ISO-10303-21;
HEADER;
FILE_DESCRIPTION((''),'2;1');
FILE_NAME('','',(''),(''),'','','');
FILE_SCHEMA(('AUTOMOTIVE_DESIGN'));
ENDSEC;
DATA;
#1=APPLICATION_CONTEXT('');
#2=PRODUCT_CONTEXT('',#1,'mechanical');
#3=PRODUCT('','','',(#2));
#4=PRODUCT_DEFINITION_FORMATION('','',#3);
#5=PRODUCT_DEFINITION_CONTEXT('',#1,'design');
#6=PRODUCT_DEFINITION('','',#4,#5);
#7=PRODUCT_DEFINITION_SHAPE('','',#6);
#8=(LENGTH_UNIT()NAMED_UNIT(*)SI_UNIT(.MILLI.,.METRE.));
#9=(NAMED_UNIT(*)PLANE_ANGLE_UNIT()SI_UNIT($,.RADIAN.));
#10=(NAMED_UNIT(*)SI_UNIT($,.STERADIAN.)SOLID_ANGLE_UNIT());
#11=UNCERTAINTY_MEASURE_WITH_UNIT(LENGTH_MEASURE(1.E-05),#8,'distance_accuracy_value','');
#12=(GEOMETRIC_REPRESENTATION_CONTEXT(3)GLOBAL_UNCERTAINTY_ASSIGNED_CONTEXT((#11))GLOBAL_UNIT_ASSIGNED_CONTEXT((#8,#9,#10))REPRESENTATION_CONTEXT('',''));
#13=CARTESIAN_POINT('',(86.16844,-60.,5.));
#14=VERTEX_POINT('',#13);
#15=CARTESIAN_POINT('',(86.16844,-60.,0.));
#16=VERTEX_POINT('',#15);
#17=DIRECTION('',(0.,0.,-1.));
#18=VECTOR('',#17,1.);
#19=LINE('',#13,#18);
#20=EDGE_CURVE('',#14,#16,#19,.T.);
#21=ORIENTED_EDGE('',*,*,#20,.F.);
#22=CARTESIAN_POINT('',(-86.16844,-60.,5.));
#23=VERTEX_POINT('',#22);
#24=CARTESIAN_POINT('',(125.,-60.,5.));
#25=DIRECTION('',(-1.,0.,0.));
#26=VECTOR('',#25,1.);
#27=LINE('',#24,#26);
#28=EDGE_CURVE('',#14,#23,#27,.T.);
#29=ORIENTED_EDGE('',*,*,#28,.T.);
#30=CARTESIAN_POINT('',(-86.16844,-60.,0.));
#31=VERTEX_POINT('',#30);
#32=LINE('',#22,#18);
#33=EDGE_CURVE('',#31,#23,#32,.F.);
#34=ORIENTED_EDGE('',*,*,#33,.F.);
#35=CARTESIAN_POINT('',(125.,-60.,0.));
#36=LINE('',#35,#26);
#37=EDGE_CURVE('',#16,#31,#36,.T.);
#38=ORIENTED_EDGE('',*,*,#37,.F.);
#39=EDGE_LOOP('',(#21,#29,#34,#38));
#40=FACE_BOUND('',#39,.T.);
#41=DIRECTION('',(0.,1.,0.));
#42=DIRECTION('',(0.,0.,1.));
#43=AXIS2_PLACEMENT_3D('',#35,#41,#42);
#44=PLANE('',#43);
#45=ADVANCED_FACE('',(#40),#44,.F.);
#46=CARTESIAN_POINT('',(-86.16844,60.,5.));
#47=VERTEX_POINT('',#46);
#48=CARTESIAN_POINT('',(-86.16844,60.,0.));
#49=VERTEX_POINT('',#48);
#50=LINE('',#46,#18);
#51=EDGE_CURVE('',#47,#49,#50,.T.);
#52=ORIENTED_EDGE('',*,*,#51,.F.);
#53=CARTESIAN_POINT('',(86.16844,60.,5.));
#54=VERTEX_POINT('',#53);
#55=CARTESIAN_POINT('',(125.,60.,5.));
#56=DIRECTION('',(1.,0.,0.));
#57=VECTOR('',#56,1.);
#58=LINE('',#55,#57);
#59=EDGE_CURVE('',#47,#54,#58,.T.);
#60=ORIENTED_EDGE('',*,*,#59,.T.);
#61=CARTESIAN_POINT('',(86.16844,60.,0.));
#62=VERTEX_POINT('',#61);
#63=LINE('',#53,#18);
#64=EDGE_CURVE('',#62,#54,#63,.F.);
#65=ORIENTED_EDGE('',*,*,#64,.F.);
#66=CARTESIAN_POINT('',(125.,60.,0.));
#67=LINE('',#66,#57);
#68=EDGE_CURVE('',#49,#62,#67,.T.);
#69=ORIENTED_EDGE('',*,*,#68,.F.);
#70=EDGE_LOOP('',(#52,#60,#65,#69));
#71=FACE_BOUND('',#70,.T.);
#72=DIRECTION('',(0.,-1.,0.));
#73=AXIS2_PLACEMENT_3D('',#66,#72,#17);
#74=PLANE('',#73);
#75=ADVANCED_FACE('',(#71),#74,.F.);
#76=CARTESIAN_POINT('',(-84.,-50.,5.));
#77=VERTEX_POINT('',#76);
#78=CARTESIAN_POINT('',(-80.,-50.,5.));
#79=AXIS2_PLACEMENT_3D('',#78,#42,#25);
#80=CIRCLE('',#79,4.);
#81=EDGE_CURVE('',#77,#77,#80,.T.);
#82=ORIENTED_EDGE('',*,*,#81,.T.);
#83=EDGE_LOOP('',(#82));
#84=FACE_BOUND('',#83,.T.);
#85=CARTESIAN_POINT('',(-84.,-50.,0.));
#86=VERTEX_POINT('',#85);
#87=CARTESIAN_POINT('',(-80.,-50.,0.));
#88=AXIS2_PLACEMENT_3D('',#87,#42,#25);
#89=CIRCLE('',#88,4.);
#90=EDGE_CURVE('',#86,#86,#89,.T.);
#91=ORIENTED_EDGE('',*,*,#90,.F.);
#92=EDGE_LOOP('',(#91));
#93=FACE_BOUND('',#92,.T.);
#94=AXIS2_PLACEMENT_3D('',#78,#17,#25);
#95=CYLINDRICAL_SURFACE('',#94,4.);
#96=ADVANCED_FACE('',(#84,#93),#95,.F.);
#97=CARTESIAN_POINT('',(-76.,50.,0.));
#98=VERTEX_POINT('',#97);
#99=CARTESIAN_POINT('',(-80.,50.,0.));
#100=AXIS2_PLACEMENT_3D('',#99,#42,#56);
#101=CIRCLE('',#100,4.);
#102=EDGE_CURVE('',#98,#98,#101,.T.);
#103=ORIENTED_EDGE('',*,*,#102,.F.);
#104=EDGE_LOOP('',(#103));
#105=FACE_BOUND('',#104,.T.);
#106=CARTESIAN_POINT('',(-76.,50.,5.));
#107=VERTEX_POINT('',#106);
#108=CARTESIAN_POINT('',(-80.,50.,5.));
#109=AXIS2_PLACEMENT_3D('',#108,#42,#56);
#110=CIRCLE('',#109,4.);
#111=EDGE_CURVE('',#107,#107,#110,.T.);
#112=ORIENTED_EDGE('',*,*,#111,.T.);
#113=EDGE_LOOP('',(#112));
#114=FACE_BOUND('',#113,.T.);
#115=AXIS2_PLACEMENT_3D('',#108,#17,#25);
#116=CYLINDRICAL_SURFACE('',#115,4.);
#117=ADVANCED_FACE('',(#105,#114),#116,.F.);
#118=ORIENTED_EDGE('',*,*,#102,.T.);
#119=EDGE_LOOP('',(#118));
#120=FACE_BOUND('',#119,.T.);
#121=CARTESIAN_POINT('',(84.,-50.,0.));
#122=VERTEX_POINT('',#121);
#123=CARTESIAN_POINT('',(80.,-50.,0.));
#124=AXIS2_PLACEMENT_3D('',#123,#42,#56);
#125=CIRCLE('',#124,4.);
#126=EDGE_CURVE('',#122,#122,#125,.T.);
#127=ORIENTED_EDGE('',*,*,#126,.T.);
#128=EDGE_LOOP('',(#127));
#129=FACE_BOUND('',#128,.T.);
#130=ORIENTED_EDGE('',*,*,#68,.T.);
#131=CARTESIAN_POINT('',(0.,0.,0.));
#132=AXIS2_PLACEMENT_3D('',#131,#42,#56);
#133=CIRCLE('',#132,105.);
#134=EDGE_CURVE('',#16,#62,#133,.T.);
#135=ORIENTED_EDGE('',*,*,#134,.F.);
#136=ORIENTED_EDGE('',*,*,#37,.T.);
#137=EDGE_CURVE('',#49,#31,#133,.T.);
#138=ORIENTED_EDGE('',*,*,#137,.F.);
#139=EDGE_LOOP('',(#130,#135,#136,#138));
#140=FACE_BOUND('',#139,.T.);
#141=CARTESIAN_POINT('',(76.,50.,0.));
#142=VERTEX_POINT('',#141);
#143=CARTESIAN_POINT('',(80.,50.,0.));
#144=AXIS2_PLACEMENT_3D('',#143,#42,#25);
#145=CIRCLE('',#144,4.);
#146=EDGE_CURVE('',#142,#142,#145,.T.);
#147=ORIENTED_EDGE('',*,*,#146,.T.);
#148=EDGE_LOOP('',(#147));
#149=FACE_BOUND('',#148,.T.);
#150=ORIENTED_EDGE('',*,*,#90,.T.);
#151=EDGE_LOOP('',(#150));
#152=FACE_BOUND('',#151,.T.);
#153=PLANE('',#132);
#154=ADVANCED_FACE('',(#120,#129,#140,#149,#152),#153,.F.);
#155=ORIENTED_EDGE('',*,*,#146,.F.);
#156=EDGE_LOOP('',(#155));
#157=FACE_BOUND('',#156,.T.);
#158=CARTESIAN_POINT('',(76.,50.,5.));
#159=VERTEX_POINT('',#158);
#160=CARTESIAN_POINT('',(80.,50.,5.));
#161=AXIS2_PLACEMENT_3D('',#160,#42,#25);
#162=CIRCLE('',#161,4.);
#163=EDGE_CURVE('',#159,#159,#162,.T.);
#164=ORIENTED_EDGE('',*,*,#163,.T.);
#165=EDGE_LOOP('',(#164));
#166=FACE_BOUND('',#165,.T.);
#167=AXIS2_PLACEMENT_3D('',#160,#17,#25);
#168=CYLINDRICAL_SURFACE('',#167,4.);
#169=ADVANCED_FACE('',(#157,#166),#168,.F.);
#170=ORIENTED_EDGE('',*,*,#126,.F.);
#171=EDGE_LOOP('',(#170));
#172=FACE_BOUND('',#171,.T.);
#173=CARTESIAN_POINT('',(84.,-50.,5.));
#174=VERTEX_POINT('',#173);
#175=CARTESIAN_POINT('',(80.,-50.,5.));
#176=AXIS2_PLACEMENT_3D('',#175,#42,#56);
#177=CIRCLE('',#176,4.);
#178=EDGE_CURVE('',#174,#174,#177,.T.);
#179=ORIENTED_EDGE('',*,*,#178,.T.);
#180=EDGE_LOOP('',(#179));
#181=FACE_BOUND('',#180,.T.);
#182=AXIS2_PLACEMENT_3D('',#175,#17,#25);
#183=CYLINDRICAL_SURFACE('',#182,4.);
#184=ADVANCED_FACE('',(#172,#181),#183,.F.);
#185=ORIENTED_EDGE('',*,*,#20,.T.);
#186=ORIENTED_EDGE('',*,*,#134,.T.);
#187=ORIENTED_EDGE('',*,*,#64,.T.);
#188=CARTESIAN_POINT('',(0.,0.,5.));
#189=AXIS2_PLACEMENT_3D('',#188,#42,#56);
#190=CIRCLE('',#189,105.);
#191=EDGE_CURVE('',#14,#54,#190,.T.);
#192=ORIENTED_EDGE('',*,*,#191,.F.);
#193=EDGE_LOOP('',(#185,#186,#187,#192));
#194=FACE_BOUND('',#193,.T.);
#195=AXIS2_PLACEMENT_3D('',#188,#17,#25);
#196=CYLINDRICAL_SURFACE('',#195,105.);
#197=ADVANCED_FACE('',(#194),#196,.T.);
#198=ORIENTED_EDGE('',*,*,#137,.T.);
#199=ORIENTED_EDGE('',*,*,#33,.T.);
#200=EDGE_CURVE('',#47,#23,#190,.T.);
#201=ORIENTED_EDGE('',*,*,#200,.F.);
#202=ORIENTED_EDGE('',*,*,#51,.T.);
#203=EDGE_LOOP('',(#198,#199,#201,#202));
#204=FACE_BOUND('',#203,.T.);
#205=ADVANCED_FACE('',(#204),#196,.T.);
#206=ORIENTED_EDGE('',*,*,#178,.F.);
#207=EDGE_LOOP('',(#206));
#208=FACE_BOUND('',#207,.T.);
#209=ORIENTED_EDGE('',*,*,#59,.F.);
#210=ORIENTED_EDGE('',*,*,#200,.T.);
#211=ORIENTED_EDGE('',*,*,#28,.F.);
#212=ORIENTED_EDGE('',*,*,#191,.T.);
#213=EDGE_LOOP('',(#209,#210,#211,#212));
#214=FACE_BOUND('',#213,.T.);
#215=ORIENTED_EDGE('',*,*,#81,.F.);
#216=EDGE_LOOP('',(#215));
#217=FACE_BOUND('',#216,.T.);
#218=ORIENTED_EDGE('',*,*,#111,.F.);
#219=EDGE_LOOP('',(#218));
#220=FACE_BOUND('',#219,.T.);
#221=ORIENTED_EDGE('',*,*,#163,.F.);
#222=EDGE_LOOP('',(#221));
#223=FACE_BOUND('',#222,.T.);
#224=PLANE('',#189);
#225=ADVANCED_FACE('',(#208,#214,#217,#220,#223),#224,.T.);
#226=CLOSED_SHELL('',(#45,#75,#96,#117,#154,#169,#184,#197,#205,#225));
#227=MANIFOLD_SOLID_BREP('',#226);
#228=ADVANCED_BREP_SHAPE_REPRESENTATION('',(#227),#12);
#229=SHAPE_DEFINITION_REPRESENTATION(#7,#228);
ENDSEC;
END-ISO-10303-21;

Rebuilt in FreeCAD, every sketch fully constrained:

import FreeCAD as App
import Part
import Sketcher
from FreeCAD import Vector
Q = App.Units.Quantity


def add_polygon(sketch, points):
    """Adds a closed chain of lines whose ends are joined by coincident constraints."""
    first, n = sketch.GeometryCount, len(points)
    for a, b in zip(points, points[1:] + points[:1]):
        sketch.addGeometry(Part.LineSegment(App.Vector(*a, 0), App.Vector(*b, 0)), False)
    for i in range(n):
        sketch.addConstraint(Sketcher.Constraint("Coincident", first + i, 2, first + (i + 1) % n, 1))

doc = App.newDocument("Part")
params = doc.addObject("Spreadsheet::Sheet", "Params")
for row, (alias, value) in enumerate([
    ("sketch1_diameter", "210 mm"),
    ("sketch1_diameter2", "8 mm"),
    ("pad1_length", "5 mm"),
    ("sketch2_width", "250 mm"),
    ("sketch2_height", "50 mm"),
], start=1):
    params.set(f"A{row}", alias)
    params.set(f"B{row}", "=" + value)
    params.setAlias(f"B{row}", alias)

body = doc.addObject("PartDesign::Body", "Body")

# Sketch on XY plane
sketch1 = body.newObject("Sketcher::SketchObject", "Sketch")
sketch1.AttachmentSupport = (doc.getObject("XY_Plane"), [""])
sketch1.MapMode = "FlatFace"
sketch1.addGeometry([
    Part.Circle(Vector(0, 0, 0), Vector(0, 0, 1), 105),  # 0
    Part.Circle(Vector(-80, -50, 0), Vector(0, 0, 1), 4),  # 1
    Part.Circle(Vector(80, -50, 0), Vector(0, 0, 1), 4),  # 2
    Part.Circle(Vector(-80, 50, 0), Vector(0, 0, 1), 4),  # 3
    Part.Circle(Vector(80, 50, 0), Vector(0, 0, 1), 4),  # 4
], False)
sketch1.addConstraint([
    Sketcher.Constraint("Coincident", 0, 3, -1, 1),
    Sketcher.Constraint("Equal", 1, 2),
    Sketcher.Constraint("Equal", 2, 3),
    Sketcher.Constraint("Equal", 3, 4),
    Sketcher.Constraint("Symmetric", 2, 3, 3, 3, -1, 1),
    Sketcher.Constraint("Symmetric", 1, 3, 4, 3, -1, 1),
    Sketcher.Constraint("Symmetric", 1, 3, 2, 3, -2),
    Sketcher.Constraint("Diameter", 0, Q("210 mm")),
    Sketcher.Constraint("Diameter", 1, Q("8 mm")),
    Sketcher.Constraint("DistanceX", 1, 3, -1, 1, Q("80 mm")),
    Sketcher.Constraint("DistanceY", 1, 3, -1, 1, Q("50 mm")),
])
sketch1.setExpression("Constraints[7]", "Params.sketch1_diameter")
sketch1.setExpression("Constraints[8]", "Params.sketch1_diameter2")
pad1 = body.newObject("PartDesign::Pad", "Pad")
pad1.Profile = sketch1
pad1.setExpression("Length", "Params.pad1_length")

# Sketch on XY plane
sketch2 = body.newObject("Sketcher::SketchObject", "Sketch001")
sketch2.AttachmentSupport = (doc.getObject("XY_Plane"), [""])
sketch2.MapMode = "FlatFace"
sketch2.AttachmentOffset = App.Placement(Vector(0, 0, 5), App.Rotation())
add_polygon(sketch2, [(-125, 110), (-125, 60), (125, 60), (125, 110)])  # lines 0-3
add_polygon(sketch2, [(-125, -60), (-125, -110), (125, -110), (125, -60)])  # lines 4-7
sketch2.addConstraint([
    Sketcher.Constraint("Vertical", 0),
    Sketcher.Constraint("Horizontal", 1),
    Sketcher.Constraint("Vertical", 2),
    Sketcher.Constraint("Horizontal", 3),
    Sketcher.Constraint("Vertical", 4),
    Sketcher.Constraint("Horizontal", 5),
    Sketcher.Constraint("Vertical", 6),
    Sketcher.Constraint("Horizontal", 7),
    Sketcher.Constraint("Symmetric", 2, 2, 4, 2, -1, 1),
    Sketcher.Constraint("Symmetric", 0, 2, 6, 2, -1, 1),
    Sketcher.Constraint("Vertical", 3, 2, 4, 2),
    Sketcher.Constraint("DistanceX", 1, 1, 1, 2, Q("250 mm")),
    Sketcher.Constraint("DistanceY", 0, 2, 0, 1, Q("50 mm")),
    Sketcher.Constraint("DistanceY", -1, 1, 0, 2, Q("60 mm")),
])
sketch2.setExpression("Constraints[19]", "Params.sketch2_width")
sketch2.setExpression("Constraints[20]", "Params.sketch2_height")
pocket1 = body.newObject("PartDesign::Pocket", "Pocket")
pocket1.Profile = sketch2
pocket1.Type = "ThroughAll"

doc.recompute()
